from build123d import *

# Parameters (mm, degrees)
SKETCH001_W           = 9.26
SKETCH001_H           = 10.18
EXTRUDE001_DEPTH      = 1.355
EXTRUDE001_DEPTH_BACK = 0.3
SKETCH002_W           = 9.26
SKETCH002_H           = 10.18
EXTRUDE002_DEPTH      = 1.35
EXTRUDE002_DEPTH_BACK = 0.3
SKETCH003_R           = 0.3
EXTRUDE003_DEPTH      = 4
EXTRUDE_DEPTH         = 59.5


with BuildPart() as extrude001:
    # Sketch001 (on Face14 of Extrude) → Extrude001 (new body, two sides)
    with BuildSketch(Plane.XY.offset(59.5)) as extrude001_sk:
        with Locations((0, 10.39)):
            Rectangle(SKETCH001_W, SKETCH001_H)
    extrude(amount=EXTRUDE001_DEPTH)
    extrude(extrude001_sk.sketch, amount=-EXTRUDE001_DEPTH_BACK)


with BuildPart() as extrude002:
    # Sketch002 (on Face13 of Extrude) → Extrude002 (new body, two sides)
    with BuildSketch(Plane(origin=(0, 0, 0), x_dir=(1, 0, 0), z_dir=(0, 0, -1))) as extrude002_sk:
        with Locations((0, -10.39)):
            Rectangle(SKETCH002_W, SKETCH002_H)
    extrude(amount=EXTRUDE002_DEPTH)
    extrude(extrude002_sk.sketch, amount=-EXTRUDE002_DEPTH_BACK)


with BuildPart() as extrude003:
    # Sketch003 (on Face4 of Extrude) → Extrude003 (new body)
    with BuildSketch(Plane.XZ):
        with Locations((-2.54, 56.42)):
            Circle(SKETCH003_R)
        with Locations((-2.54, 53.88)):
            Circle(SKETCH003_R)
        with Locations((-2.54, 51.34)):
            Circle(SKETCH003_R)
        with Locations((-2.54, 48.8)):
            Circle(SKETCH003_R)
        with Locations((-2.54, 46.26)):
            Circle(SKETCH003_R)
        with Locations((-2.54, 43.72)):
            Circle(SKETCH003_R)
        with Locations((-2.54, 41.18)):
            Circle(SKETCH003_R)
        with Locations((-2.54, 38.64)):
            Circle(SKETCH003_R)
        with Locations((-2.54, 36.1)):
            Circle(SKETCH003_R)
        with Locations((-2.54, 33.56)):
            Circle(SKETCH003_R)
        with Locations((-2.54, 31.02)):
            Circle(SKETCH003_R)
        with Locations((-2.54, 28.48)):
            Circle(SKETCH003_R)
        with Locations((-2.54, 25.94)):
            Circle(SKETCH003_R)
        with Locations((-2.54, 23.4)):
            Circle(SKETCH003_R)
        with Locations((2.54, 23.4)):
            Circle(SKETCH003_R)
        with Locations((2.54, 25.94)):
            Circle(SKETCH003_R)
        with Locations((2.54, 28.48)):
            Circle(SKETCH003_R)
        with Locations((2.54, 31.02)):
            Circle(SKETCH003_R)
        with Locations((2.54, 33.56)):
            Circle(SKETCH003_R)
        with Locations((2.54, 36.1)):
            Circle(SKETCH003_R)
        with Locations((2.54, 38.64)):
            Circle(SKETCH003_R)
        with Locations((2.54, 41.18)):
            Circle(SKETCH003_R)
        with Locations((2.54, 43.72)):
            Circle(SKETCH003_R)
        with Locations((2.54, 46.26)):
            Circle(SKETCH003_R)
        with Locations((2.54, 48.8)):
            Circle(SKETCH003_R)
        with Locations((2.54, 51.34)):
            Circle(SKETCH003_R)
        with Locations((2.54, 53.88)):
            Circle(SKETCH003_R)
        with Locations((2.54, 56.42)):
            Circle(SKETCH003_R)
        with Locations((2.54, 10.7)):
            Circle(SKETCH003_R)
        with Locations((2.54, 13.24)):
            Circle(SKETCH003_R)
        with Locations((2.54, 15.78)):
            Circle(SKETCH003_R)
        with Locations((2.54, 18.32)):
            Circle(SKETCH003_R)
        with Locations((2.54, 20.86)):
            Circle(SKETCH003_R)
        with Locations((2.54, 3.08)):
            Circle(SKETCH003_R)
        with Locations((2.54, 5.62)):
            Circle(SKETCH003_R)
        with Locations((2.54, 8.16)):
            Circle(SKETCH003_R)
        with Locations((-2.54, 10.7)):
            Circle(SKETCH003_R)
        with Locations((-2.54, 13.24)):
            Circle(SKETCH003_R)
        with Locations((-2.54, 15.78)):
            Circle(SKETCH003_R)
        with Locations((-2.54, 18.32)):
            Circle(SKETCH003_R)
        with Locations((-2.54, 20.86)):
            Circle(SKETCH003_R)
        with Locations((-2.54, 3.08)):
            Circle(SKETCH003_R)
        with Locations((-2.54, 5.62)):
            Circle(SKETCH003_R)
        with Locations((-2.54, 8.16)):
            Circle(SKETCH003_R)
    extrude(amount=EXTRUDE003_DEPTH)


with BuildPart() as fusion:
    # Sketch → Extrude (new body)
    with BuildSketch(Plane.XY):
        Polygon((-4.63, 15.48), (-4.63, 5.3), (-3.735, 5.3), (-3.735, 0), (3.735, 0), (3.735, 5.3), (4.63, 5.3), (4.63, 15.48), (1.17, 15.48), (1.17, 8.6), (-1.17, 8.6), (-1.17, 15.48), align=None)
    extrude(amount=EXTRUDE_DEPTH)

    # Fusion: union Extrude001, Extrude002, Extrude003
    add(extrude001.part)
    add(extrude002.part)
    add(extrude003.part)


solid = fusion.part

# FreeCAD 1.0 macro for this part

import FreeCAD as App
import Part
import Sketcher


def add_polygon(sketch, points):
    """Adds a closed chain of lines whose ends are joined by coincident constraints."""
    first, n = sketch.GeometryCount, len(points)
    for a, b in zip(points, points[1:] + points[:1]):
        sketch.addGeometry(Part.LineSegment(App.Vector(*a, 0), App.Vector(*b, 0)), False)
    for i in range(n):
        sketch.addConstraint(Sketcher.Constraint("Coincident", first + i, 2, first + (i + 1) % n, 1))

doc = App.newDocument("Part")
body = doc.addObject("PartDesign::Body", "Body")

sketch1 = doc.addObject("Sketcher::SketchObject", "Sketch")
body.addObject(sketch1)
sketch1.AttachmentSupport = (doc.XY_Plane, [""])
sketch1.MapMode = "FlatFace"
sketch1.AttachmentOffset = App.Placement(App.Vector(0, 0, 59.5), App.Rotation())
add_polygon(sketch1, [(-5, 15), (-5, 5), (5, 5), (5, 15)])
sketch1.addConstraint([
    Sketcher.Constraint("Vertical", 0),
    Sketcher.Constraint("Horizontal", 1),
    Sketcher.Constraint("Vertical", 2),
    Sketcher.Constraint("Horizontal", 3),
    Sketcher.Constraint("DistanceX", 1, 1, 1, 2, 9.26),
    Sketcher.Constraint("DistanceY", 0, 2, 0, 1, 10.18),
    Sketcher.Constraint("DistanceY", -1, 1, 0, 2, 5.3),
    Sketcher.Constraint("DistanceX", 0, 2, -1, 1, 4.63),
])
pad1 = doc.addObject("PartDesign::Pad", "Pad")
body.addObject(pad1)
pad1.Profile = sketch1
pad1.Type = "TwoLengths"
pad1.Length = 1.355
pad1.Length2 = 0.3
body2 = doc.addObject("PartDesign::Body", "Body001")

sketch2 = doc.addObject("Sketcher::SketchObject", "Sketch001")
body2.addObject(sketch2)
sketch2.AttachmentSupport = (doc.getObject("XY_Plane001"), [""])
sketch2.MapMode = "FlatFace"
add_polygon(sketch2, [(-5, 5), (-5, 15), (5, 15), (5, 5)])
sketch2.addConstraint([
    Sketcher.Constraint("Vertical", 0),
    Sketcher.Constraint("Horizontal", 1),
    Sketcher.Constraint("Vertical", 2),
    Sketcher.Constraint("Horizontal", 3),
    Sketcher.Constraint("DistanceX", 1, 1, 1, 2, 9.26),
    Sketcher.Constraint("DistanceY", 0, 1, 0, 2, 10.18),
    Sketcher.Constraint("DistanceY", -1, 1, 2, 2, 5.3),
    Sketcher.Constraint("DistanceX", 0, 2, -1, 1, 4.63),
])
pad2 = doc.addObject("PartDesign::Pad", "Pad001")
body2.addObject(pad2)
pad2.Profile = sketch2
pad2.Type = "TwoLengths"
pad2.Length = 1.35
pad2.Length2 = 0.3
pad2.Reversed = True
body3 = doc.addObject("PartDesign::Body", "Body002")
body3.AllowCompound = True

sketch3 = doc.addObject("Sketcher::SketchObject", "Sketch002")
body3.addObject(sketch3)
sketch3.AttachmentSupport = (doc.getObject("XZ_Plane002"), [""])
sketch3.MapMode = "FlatFace"
sketch3.addGeometry([
    Part.Circle(App.Vector(-2.54, 56.42, 0), App.Vector(0, 0, 1), 0.3),
    Part.Circle(App.Vector(-2.54, 53.88, 0), App.Vector(0, 0, 1), 0.3),
    Part.Circle(App.Vector(-2.54, 51.34, 0), App.Vector(0, 0, 1), 0.3),
    Part.Circle(App.Vector(-2.54, 48.8, 0), App.Vector(0, 0, 1), 0.3),
    Part.Circle(App.Vector(-2.54, 46.26, 0), App.Vector(0, 0, 1), 0.3),
    Part.Circle(App.Vector(-2.54, 43.72, 0), App.Vector(0, 0, 1), 0.3),
    Part.Circle(App.Vector(-2.54, 41.18, 0), App.Vector(0, 0, 1), 0.3),
    Part.Circle(App.Vector(-2.54, 38.64, 0), App.Vector(0, 0, 1), 0.3),
    Part.Circle(App.Vector(-2.54, 36.1, 0), App.Vector(0, 0, 1), 0.3),
    Part.Circle(App.Vector(-2.54, 33.56, 0), App.Vector(0, 0, 1), 0.3),
    Part.Circle(App.Vector(-2.54, 31.02, 0), App.Vector(0, 0, 1), 0.3),
    Part.Circle(App.Vector(-2.54, 28.48, 0), App.Vector(0, 0, 1), 0.3),
    Part.Circle(App.Vector(-2.54, 25.94, 0), App.Vector(0, 0, 1), 0.3),
    Part.Circle(App.Vector(-2.54, 23.4, 0), App.Vector(0, 0, 1), 0.3),
    Part.Circle(App.Vector(2.54, 23.4, 0), App.Vector(0, 0, 1), 0.3),
    Part.Circle(App.Vector(2.54, 25.94, 0), App.Vector(0, 0, 1), 0.3),
    Part.Circle(App.Vector(2.54, 28.48, 0), App.Vector(0, 0, 1), 0.3),
    Part.Circle(App.Vector(2.54, 31.02, 0), App.Vector(0, 0, 1), 0.3),
    Part.Circle(App.Vector(2.54, 33.56, 0), App.Vector(0, 0, 1), 0.3),
    Part.Circle(App.Vector(2.54, 36.1, 0), App.Vector(0, 0, 1), 0.3),
    Part.Circle(App.Vector(2.54, 38.64, 0), App.Vector(0, 0, 1), 0.3),
    Part.Circle(App.Vector(2.54, 41.18, 0), App.Vector(0, 0, 1), 0.3),
    Part.Circle(App.Vector(2.54, 43.72, 0), App.Vector(0, 0, 1), 0.3),
    Part.Circle(App.Vector(2.54, 46.26, 0), App.Vector(0, 0, 1), 0.3),
    Part.Circle(App.Vector(2.54, 48.8, 0), App.Vector(0, 0, 1), 0.3),
    Part.Circle(App.Vector(2.54, 51.34, 0), App.Vector(0, 0, 1), 0.3),
    Part.Circle(App.Vector(2.54, 53.88, 0), App.Vector(0, 0, 1), 0.3),
    Part.Circle(App.Vector(2.54, 56.42, 0), App.Vector(0, 0, 1), 0.3),
    Part.Circle(App.Vector(2.54, 10.7, 0), App.Vector(0, 0, 1), 0.3),
    Part.Circle(App.Vector(2.54, 13.24, 0), App.Vector(0, 0, 1), 0.3),
    Part.Circle(App.Vector(2.54, 15.78, 0), App.Vector(0, 0, 1), 0.3),
    Part.Circle(App.Vector(2.54, 18.32, 0), App.Vector(0, 0, 1), 0.3),
    Part.Circle(App.Vector(2.54, 20.86, 0), App.Vector(0, 0, 1), 0.3),
    Part.Circle(App.Vector(2.54, 3.08, 0), App.Vector(0, 0, 1), 0.3),
    Part.Circle(App.Vector(2.54, 5.62, 0), App.Vector(0, 0, 1), 0.3),
    Part.Circle(App.Vector(2.54, 8.16, 0), App.Vector(0, 0, 1), 0.3),
    Part.Circle(App.Vector(-2.54, 10.7, 0), App.Vector(0, 0, 1), 0.3),
    Part.Circle(App.Vector(-2.54, 13.24, 0), App.Vector(0, 0, 1), 0.3),
    Part.Circle(App.Vector(-2.54, 15.78, 0), App.Vector(0, 0, 1), 0.3),
    Part.Circle(App.Vector(-2.54, 18.32, 0), App.Vector(0, 0, 1), 0.3),
    Part.Circle(App.Vector(-2.54, 20.86, 0), App.Vector(0, 0, 1), 0.3),
    Part.Circle(App.Vector(-2.54, 3.08, 0), App.Vector(0, 0, 1), 0.3),
    Part.Circle(App.Vector(-2.54, 5.62, 0), App.Vector(0, 0, 1), 0.3),
    Part.Circle(App.Vector(-2.54, 8.16, 0), App.Vector(0, 0, 1), 0.3),
], False)
sketch3.addConstraint([
    Sketcher.Constraint("Equal", 0, 1),
    Sketcher.Constraint("Equal", 1, 2),
    Sketcher.Constraint("Equal", 2, 3),
    Sketcher.Constraint("Equal", 3, 4),
    Sketcher.Constraint("Equal", 4, 5),
    Sketcher.Constraint("Equal", 5, 6),
    Sketcher.Constraint("Equal", 6, 7),
    Sketcher.Constraint("Equal", 7, 8),
    Sketcher.Constraint("Equal", 8, 9),
    Sketcher.Constraint("Equal", 9, 10),
    Sketcher.Constraint("Equal", 10, 11),
    Sketcher.Constraint("Equal", 11, 12),
    Sketcher.Constraint("Equal", 12, 13),
    Sketcher.Constraint("Equal", 13, 14),
    Sketcher.Constraint("Equal", 14, 15),
    Sketcher.Constraint("Equal", 15, 16),
    Sketcher.Constraint("Equal", 16, 17),
    Sketcher.Constraint("Equal", 17, 18),
    Sketcher.Constraint("Equal", 18, 19),
    Sketcher.Constraint("Equal", 19, 20),
    Sketcher.Constraint("Equal", 20, 21),
    Sketcher.Constraint("Equal", 21, 22),
    Sketcher.Constraint("Equal", 22, 23),
    Sketcher.Constraint("Equal", 23, 24),
    Sketcher.Constraint("Equal", 24, 25),
    Sketcher.Constraint("Equal", 25, 26),
    Sketcher.Constraint("Equal", 26, 27),
    Sketcher.Constraint("Equal", 27, 28),
    Sketcher.Constraint("Equal", 28, 29),
    Sketcher.Constraint("Equal", 29, 30),
    Sketcher.Constraint("Equal", 30, 31),
    Sketcher.Constraint("Equal", 31, 32),
    Sketcher.Constraint("Equal", 32, 33),
    Sketcher.Constraint("Equal", 33, 34),
    Sketcher.Constraint("Equal", 34, 35),
    Sketcher.Constraint("Equal", 35, 36),
    Sketcher.Constraint("Equal", 36, 37),
    Sketcher.Constraint("Equal", 37, 38),
    Sketcher.Constraint("Equal", 38, 39),
    Sketcher.Constraint("Equal", 39, 40),
    Sketcher.Constraint("Equal", 40, 41),
    Sketcher.Constraint("Equal", 41, 42),
    Sketcher.Constraint("Equal", 42, 43),
    Sketcher.Constraint("Symmetric", 13, 3, 14, 3, -2),
    Sketcher.Constraint("Symmetric", 12, 3, 15, 3, -2),
    Sketcher.Constraint("Symmetric", 11, 3, 16, 3, -2),
    Sketcher.Constraint("Symmetric", 10, 3, 17, 3, -2),
    Sketcher.Constraint("Symmetric", 9, 3, 18, 3, -2),
    Sketcher.Constraint("Symmetric", 8, 3, 19, 3, -2),
    Sketcher.Constraint("Symmetric", 7, 3, 20, 3, -2),
    Sketcher.Constraint("Symmetric", 6, 3, 21, 3, -2),
    Sketcher.Constraint("Symmetric", 5, 3, 22, 3, -2),
    Sketcher.Constraint("Symmetric", 4, 3, 23, 3, -2),
    Sketcher.Constraint("Symmetric", 3, 3, 24, 3, -2),
    Sketcher.Constraint("Symmetric", 2, 3, 25, 3, -2),
    Sketcher.Constraint("Symmetric", 1, 3, 26, 3, -2),
    Sketcher.Constraint("Symmetric", 0, 3, 27, 3, -2),
    Sketcher.Constraint("Symmetric", 28, 3, 36, 3, -2),
    Sketcher.Constraint("Symmetric", 29, 3, 37, 3, -2),
    Sketcher.Constraint("Symmetric", 30, 3, 38, 3, -2),
    Sketcher.Constraint("Symmetric", 31, 3, 39, 3, -2),
    Sketcher.Constraint("Symmetric", 32, 3, 40, 3, -2),
    Sketcher.Constraint("Symmetric", 33, 3, 41, 3, -2),
    Sketcher.Constraint("Symmetric", 34, 3, 42, 3, -2),
    Sketcher.Constraint("Symmetric", 35, 3, 43, 3, -2),
    Sketcher.Constraint("Vertical", 0, 3, 1, 3),
    Sketcher.Constraint("Vertical", 1, 3, 2, 3),
    Sketcher.Constraint("Vertical", 2, 3, 3, 3),
    Sketcher.Constraint("Vertical", 3, 3, 4, 3),
    Sketcher.Constraint("Vertical", 4, 3, 5, 3),
    Sketcher.Constraint("Vertical", 5, 3, 6, 3),
    Sketcher.Constraint("Vertical", 6, 3, 7, 3),
    Sketcher.Constraint("Vertical", 7, 3, 8, 3),
    Sketcher.Constraint("Vertical", 8, 3, 9, 3),
    Sketcher.Constraint("Vertical", 9, 3, 10, 3),
    Sketcher.Constraint("Vertical", 10, 3, 11, 3),
    Sketcher.Constraint("Vertical", 11, 3, 12, 3),
    Sketcher.Constraint("Vertical", 12, 3, 13, 3),
    Sketcher.Constraint("Vertical", 27, 3, 28, 3),
    Sketcher.Constraint("Vertical", 28, 3, 29, 3),
    Sketcher.Constraint("Vertical", 29, 3, 30, 3),
    Sketcher.Constraint("Vertical", 30, 3, 31, 3),
    Sketcher.Constraint("Vertical", 31, 3, 32, 3),
    Sketcher.Constraint("Vertical", 32, 3, 33, 3),
    Sketcher.Constraint("Vertical", 33, 3, 34, 3),
    Sketcher.Constraint("Vertical", 34, 3, 35, 3),
    Sketcher.Constraint("Diameter", 0, 0.6),
    Sketcher.Constraint("DistanceY", -1, 1, 3, 3, 48.8),
    Sketcher.Constraint("DistanceY", -1, 1, 8, 3, 36.1),
    Sketcher.Constraint("DistanceY", -1, 1, 13, 3, 23.4),
    Sketcher.Constraint("DistanceY", -1, 1, 28, 3, 10.7),
    Sketcher.Constraint("DistanceY", 5, 3, 0, 3, 12.7),
    Sketcher.Constraint("DistanceY", 6, 3, 1, 3, 12.7),
    Sketcher.Constraint("DistanceY", 7, 3, 2, 3, 12.7),
    Sketcher.Constraint("DistanceY", 9, 3, 4, 3, 12.7),
    Sketcher.Constraint("DistanceY", 10, 3, 5, 3, 12.7),
    Sketcher.Constraint("DistanceY", 11, 3, 6, 3, 12.7),
    Sketcher.Constraint("DistanceY", 12, 3, 7, 3, 12.7),
    Sketcher.Constraint("DistanceY", 29, 3, 15, 3, 12.7),
    Sketcher.Constraint("DistanceY", 33, 3, 30, 3, 12.7),
    Sketcher.Constraint("DistanceY", 34, 3, 31, 3, 12.7),
    Sketcher.Constraint("DistanceX", 0, 3, -1, 1, 2.54),
    Sketcher.Constraint("DistanceY", -1, 1, 0, 3, 56.42),
    Sketcher.Constraint("DistanceY", -1, 1, 1, 3, 53.88),
    Sketcher.Constraint("DistanceY", -1, 1, 2, 3, 51.34),
    Sketcher.Constraint("DistanceY", -1, 1, 4, 3, 46.26),
    Sketcher.Constraint("DistanceY", -1, 1, 30, 3, 15.78),
    Sketcher.Constraint("DistanceY", -1, 1, 31, 3, 18.32),
    Sketcher.Constraint("DistanceY", -1, 1, 32, 3, 20.86),
    Sketcher.Constraint("DistanceY", -1, 1, 35, 3, 8.16),
])
pad3 = doc.addObject("PartDesign::Pad", "Pad002")
body3.addObject(pad3)
pad3.Profile = sketch3
pad3.Length = 4
body4 = doc.addObject("PartDesign::Body", "Body003")

sketch4 = doc.addObject("Sketcher::SketchObject", "Sketch003")
body4.addObject(sketch4)
sketch4.AttachmentSupport = (doc.getObject("XY_Plane003"), [""])
sketch4.MapMode = "FlatFace"
add_polygon(sketch4, [(-4.6, 15.5), (-4.6, 5.3), (-3.7, 5.3), (-3.7, 0), (3.7, 0), (3.7, 5.3), (4.6, 5.3), (4.6, 15.5), (1.2, 15.5), (1.2, 8.6), (-1.2, 8.6), (-1.2, 15.5)])
sketch4.addConstraint([
    Sketcher.Constraint("Vertical", 0),
    Sketcher.Constraint("Horizontal", 1),
    Sketcher.Constraint("Vertical", 2),
    Sketcher.Constraint("Horizontal", 3),
    Sketcher.Constraint("Vertical", 4),
    Sketcher.Constraint("Horizontal", 5),
    Sketcher.Constraint("Vertical", 6),
    Sketcher.Constraint("Horizontal", 7),
    Sketcher.Constraint("Vertical", 8),
    Sketcher.Constraint("Horizontal", 9),
    Sketcher.Constraint("Vertical", 10),
    Sketcher.Constraint("Horizontal", 11),
    Sketcher.Constraint("Symmetric", 2, 2, 3, 2, -1, 1),
    Sketcher.Constraint("Symmetric", 0, 2, 5, 2, -2),
    Sketcher.Constraint("Symmetric", 7, 2, 10, 2, -2),
    Sketcher.Constraint("DistanceY", 2, 2, 2, 1, 5.3),
    Sketcher.Constraint("DistanceX", 3, 1, 3, 2, 7.47),
    Sketcher.Constraint("DistanceX", 7, 2, 7, 1, 3.46),
    Sketcher.Constraint("DistanceX", 9, 2, 9, 1, 2.34),
    Sketcher.Constraint("DistanceY", 0, 2, 0, 1, 10.18),
    Sketcher.Constraint("DistanceY", 8, 2, 8, 1, 6.88),
])
pad4 = doc.addObject("PartDesign::Pad", "Pad003")
body4.addObject(pad4)
pad4.Profile = sketch4
pad4.Length = 59.5
doc.recompute()

boolean = doc.addObject("PartDesign::Boolean", "Boolean")
body4.addObject(boolean)
boolean.Type = "Fuse"
boolean.addObjects([body])
doc.recompute()

boolean2 = doc.addObject("PartDesign::Boolean", "Boolean001")
body4.addObject(boolean2)
boolean2.Type = "Fuse"
boolean2.addObjects([body2])
doc.recompute()

boolean3 = doc.addObject("PartDesign::Boolean", "Boolean002")
body4.addObject(boolean3)
boolean3.Type = "Fuse"
boolean3.addObjects([body3])

doc.recompute()
